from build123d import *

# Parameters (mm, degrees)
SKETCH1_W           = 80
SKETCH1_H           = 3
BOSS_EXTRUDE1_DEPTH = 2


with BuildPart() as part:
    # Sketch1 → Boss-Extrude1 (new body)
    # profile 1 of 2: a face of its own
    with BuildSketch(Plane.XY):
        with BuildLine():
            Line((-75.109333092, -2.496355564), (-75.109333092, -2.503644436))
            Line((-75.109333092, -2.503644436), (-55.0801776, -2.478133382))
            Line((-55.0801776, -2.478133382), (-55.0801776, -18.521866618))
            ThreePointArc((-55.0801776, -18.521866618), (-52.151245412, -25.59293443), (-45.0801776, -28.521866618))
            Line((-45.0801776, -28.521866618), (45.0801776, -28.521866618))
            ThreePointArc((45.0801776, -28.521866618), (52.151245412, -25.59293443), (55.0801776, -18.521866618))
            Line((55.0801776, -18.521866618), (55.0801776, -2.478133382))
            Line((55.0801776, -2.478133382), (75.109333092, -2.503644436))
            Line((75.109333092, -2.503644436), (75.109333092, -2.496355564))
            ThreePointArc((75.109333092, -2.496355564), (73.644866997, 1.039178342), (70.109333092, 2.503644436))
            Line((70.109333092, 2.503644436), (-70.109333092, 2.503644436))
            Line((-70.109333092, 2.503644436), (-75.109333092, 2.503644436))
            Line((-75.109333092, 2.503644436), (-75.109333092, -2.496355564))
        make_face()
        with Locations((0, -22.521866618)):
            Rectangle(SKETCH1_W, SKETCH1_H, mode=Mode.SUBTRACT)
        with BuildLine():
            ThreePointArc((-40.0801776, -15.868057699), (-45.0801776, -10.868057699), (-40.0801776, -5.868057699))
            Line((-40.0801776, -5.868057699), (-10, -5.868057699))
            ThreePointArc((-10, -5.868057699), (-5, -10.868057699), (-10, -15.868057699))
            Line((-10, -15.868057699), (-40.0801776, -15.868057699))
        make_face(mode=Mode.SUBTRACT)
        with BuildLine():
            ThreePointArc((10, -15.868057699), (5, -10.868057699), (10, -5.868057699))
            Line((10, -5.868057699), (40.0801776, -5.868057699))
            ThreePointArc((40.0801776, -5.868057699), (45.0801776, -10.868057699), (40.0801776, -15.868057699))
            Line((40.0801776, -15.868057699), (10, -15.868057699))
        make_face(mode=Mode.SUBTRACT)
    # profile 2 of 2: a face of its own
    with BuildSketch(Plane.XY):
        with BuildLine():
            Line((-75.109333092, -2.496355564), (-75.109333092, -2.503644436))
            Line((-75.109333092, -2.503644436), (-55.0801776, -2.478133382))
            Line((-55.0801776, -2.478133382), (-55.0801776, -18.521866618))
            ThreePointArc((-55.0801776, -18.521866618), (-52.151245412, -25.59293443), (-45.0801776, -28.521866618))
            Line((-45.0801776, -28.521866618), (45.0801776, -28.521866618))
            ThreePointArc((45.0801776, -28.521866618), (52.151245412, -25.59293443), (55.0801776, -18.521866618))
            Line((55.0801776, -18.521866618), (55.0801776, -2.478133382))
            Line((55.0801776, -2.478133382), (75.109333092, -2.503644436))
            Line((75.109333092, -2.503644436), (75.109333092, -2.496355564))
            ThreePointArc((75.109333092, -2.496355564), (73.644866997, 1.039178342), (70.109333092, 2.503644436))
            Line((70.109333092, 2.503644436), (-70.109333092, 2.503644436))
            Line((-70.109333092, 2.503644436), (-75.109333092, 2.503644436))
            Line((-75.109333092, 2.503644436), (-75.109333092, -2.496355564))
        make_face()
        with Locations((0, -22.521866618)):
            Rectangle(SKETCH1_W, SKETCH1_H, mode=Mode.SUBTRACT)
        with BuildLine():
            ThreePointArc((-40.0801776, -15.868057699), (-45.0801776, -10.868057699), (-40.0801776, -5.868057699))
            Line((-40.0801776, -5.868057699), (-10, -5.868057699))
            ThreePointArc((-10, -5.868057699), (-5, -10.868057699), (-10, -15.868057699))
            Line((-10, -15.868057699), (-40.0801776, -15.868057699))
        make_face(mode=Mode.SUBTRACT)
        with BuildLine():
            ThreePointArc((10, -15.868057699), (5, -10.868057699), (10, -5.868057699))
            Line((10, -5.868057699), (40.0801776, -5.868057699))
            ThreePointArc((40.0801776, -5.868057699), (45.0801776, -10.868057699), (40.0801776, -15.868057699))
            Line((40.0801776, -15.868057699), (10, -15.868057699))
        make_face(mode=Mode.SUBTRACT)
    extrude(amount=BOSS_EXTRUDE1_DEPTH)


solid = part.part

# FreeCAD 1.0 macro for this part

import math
import FreeCAD as App
import Part
import Sketcher
Q = App.Units.Quantity

doc = App.newDocument("Part")
body = doc.addObject("PartDesign::Body", "Body")

# Sketch on XY plane
sketch1 = body.newObject("Sketcher::SketchObject", "Sketch")
sketch1.AttachmentSupport = (doc.getObject("XY_Plane"), [""])
sketch1.MapMode = "FlatFace"
sketch1.addGeometry([
    Part.LineSegment(App.Vector(-75.109333, -2.503644, 0), App.Vector(-55.080178, -2.478133, 0)),  # 0
    Part.LineSegment(App.Vector(-55.080178, -2.478133, 0), App.Vector(-55.080178, -18.521867, 0)),  # 1
    Part.ArcOfCircle(Part.Circle(App.Vector(-45.080178, -18.521867, 0), App.Vector(0, 0, 1), 10), math.radians(180), math.radians(270)),  # 2
    Part.LineSegment(App.Vector(-45.080178, -28.521867, 0), App.Vector(45.080178, -28.521867, 0)),  # 3
    Part.ArcOfCircle(Part.Circle(App.Vector(45.080178, -18.521867, 0), App.Vector(0, 0, 1), 10), math.radians(-90), math.radians(0)),  # 4
    Part.LineSegment(App.Vector(55.080178, -18.521867, 0), App.Vector(55.080178, -2.478133, 0)),  # 5
    Part.LineSegment(App.Vector(55.080178, -2.478133, 0), App.Vector(75.109333, -2.503644, 0)),  # 6
    Part.LineSegment(App.Vector(75.109333, -2.503644, 0), App.Vector(75.109333, -2.496356, 0)),  # 7
    Part.ArcOfCircle(Part.Circle(App.Vector(70.109333, -2.496356, 0), App.Vector(0, 0, 1), 5), math.radians(0), math.radians(90)),  # 8
    Part.LineSegment(App.Vector(70.109333, 2.503644, 0), App.Vector(-75.109333, 2.503644, 0)),  # 9
    Part.LineSegment(App.Vector(-75.109333, 2.503644, 0), App.Vector(-75.109333, -2.503644, 0)),  # 10
    Part.LineSegment(App.Vector(40, -24.021867, 0), App.Vector(-40, -24.021867, 0)),  # 11
    Part.LineSegment(App.Vector(-40, -24.021867, 0), App.Vector(-40, -21.021867, 0)),  # 12
    Part.LineSegment(App.Vector(-40, -21.021867, 0), App.Vector(40, -21.021867, 0)),  # 13
    Part.LineSegment(App.Vector(40, -21.021867, 0), App.Vector(40, -24.021867, 0)),  # 14
    Part.LineSegment(App.Vector(-10, -15.868058, 0), App.Vector(-40.080178, -15.868058, 0)),  # 15
    Part.ArcOfCircle(Part.Circle(App.Vector(-40.080178, -10.868058, 0), App.Vector(0, 0, 1), 5), math.radians(90), math.radians(270)),  # 16
    Part.LineSegment(App.Vector(-40.080178, -5.868058, 0), App.Vector(-10, -5.868058, 0)),  # 17
    Part.ArcOfCircle(Part.Circle(App.Vector(-10, -10.868058, 0), App.Vector(0, 0, 1), 5), math.radians(-90), math.radians(90)),  # 18
    Part.LineSegment(App.Vector(40.080178, -15.868058, 0), App.Vector(10, -15.868058, 0)),  # 19
    Part.ArcOfCircle(Part.Circle(App.Vector(10, -10.868058, 0), App.Vector(0, 0, 1), 5), math.radians(90), math.radians(270)),  # 20
    Part.LineSegment(App.Vector(10, -5.868058, 0), App.Vector(40.080178, -5.868058, 0)),  # 21
    Part.ArcOfCircle(Part.Circle(App.Vector(40.080178, -10.868058, 0), App.Vector(0, 0, 1), 5), math.radians(-90), math.radians(90)),  # 22
], False)
sketch1.addConstraint([
    Sketcher.Constraint("Coincident", 0, 2, 1, 1),
    Sketcher.Constraint("Tangent", 1, 2, 2, 1),
    Sketcher.Constraint("Tangent", 2, 2, 3, 1),
    Sketcher.Constraint("Tangent", 3, 2, 4, 1),
    Sketcher.Constraint("Tangent", 4, 2, 5, 1),
    Sketcher.Constraint("Coincident", 5, 2, 6, 1),
    Sketcher.Constraint("Coincident", 6, 2, 7, 1),
    Sketcher.Constraint("Tangent", 7, 2, 8, 1),
    Sketcher.Constraint("Tangent", 8, 2, 9, 1),
    Sketcher.Constraint("Coincident", 9, 2, 10, 1),
    Sketcher.Constraint("Coincident", 10, 2, 0, 1),
    Sketcher.Constraint("Coincident", 11, 2, 12, 1),
    Sketcher.Constraint("Coincident", 12, 2, 13, 1),
    Sketcher.Constraint("Coincident", 13, 2, 14, 1),
    Sketcher.Constraint("Coincident", 14, 2, 11, 1),
    Sketcher.Constraint("Tangent", 15, 2, 16, 2),
    Sketcher.Constraint("Tangent", 16, 1, 17, 1),
    Sketcher.Constraint("Tangent", 17, 2, 18, 2),
    Sketcher.Constraint("Tangent", 18, 1, 15, 1),
    Sketcher.Constraint("Tangent", 19, 2, 20, 2),
    Sketcher.Constraint("Tangent", 20, 1, 21, 1),
    Sketcher.Constraint("Tangent", 21, 2, 22, 2),
    Sketcher.Constraint("Tangent", 22, 1, 19, 1),
    Sketcher.Constraint("Vertical", 1),
    Sketcher.Constraint("Horizontal", 3),
    Sketcher.Constraint("Vertical", 5),
    Sketcher.Constraint("Horizontal", 9),
    Sketcher.Constraint("Vertical", 10),
    Sketcher.Constraint("Horizontal", 11),
    Sketcher.Constraint("Vertical", 12),
    Sketcher.Constraint("Horizontal", 13),
    Sketcher.Constraint("Vertical", 14),
    Sketcher.Constraint("Horizontal", 15),
    Sketcher.Constraint("Horizontal", 17),
    Sketcher.Constraint("Horizontal", 19),
    Sketcher.Constraint("Horizontal", 21),
    Sketcher.Constraint("Equal", 2, 4),
    Sketcher.Constraint("Equal", 8, 16),
    Sketcher.Constraint("Equal", 18, 20),
    Sketcher.Constraint("Symmetric", 6, 2, 9, 2, -1, 1),
    Sketcher.Constraint("Symmetric", 18, 3, 20, 3, -2),
    Sketcher.Constraint("Symmetric", 0, 2, 5, 2, -2),
    Sketcher.Constraint("Horizontal", 8, 3, 7, 2),
    Sketcher.Constraint("Horizontal", 6, 2, 10, 2),
    Sketcher.Constraint("Equal", 17, 19),
    Sketcher.Constraint("Radius", 2, Q("10 mm")),
    Sketcher.Constraint("Radius", 8, Q("5 mm")),
    Sketcher.Constraint("DistanceX", 11, 2, 11, 1, Q("80 mm")),
    Sketcher.Constraint("DistanceY", 12, 1, 12, 2, Q("3 mm")),
    Sketcher.Constraint("DistanceX", 18, 3, -1, 1, Q("10 mm")),
    Sketcher.Constraint("DistanceX", 11, 2, -1, 1, Q("40 mm")),
    Sketcher.Constraint("DistanceX", 2, 3, 16, 3, Q("5 mm")),
    Sketcher.Constraint("DistanceY", 2, 2, 11, 2, Q("4.5 mm")),
    Sketcher.Constraint("DistanceY", 7, 1, 7, 2, Q("0.007289 mm")),
    Sketcher.Constraint("Distance", 0, Q("20.029172 mm")),
    Sketcher.Constraint("DistanceX", 3, 1, 3, 2, Q("90.160355 mm")),
    Sketcher.Constraint("DistanceY", 1, 2, 1, 1, Q("16.043733 mm")),
    Sketcher.Constraint("DistanceY", 4, 3, 8, 3, Q("16.025511 mm")),
    Sketcher.Constraint("DistanceY", 2, 3, 16, 3, Q("7.653809 mm")),
])
pad1 = body.newObject("PartDesign::Pad", "Pad")
pad1.Profile = sketch1
pad1.Length = 2

doc.recompute()
